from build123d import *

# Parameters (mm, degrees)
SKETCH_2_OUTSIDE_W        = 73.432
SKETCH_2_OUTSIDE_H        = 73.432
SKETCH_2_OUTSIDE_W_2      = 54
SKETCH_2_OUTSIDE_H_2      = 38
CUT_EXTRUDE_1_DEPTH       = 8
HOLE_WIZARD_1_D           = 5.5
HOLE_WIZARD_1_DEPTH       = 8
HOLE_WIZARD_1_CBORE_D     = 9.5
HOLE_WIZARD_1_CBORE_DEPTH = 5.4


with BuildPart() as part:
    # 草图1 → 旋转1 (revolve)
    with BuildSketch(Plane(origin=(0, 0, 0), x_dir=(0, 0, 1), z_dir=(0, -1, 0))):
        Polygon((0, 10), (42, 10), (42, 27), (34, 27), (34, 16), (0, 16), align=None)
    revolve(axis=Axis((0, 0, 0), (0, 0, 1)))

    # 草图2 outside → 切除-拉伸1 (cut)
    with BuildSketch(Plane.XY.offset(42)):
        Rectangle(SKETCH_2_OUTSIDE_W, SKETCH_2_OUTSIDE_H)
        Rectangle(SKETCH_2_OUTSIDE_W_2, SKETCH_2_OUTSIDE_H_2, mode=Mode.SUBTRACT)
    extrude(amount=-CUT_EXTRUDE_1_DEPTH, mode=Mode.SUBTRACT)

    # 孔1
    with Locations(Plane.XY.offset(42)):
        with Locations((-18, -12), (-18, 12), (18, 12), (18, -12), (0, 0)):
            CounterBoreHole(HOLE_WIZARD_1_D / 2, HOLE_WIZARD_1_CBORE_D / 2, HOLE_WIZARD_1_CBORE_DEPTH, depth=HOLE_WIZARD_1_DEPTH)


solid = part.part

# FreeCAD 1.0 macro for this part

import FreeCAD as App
import Part
import Sketcher
from FreeCAD import Vector
Q = App.Units.Quantity


def add_polygon(sketch, points):
    """Adds a closed chain of lines whose ends are joined by coincident constraints."""
    first, n = sketch.GeometryCount, len(points)
    for a, b in zip(points, points[1:] + points[:1]):
        sketch.addGeometry(Part.LineSegment(App.Vector(*a, 0), App.Vector(*b, 0)), False)
    for i in range(n):
        sketch.addConstraint(Sketcher.Constraint("Coincident", first + i, 2, first + (i + 1) % n, 1))

doc = App.newDocument("Part")
body = doc.addObject("PartDesign::Body", "Body")

# Sketch on XZ plane
sketch1 = body.newObject("Sketcher::SketchObject", "Sketch")
sketch1.AttachmentSupport = (doc.getObject("XZ_Plane"), [""])
sketch1.MapMode = "FlatFace"
add_polygon(sketch1, [(-10, 0), (-10, 42), (-27, 42), (-27, 34), (-16, 34), (-16, 0)])  # lines 0-5
sketch1.addConstraint([
    Sketcher.Constraint("Vertical", 0),
    Sketcher.Constraint("Horizontal", 1),
    Sketcher.Constraint("Vertical", 2),
    Sketcher.Constraint("Horizontal", 3),
    Sketcher.Constraint("Vertical", 4),
    Sketcher.Constraint("Horizontal", 5),
    Sketcher.Constraint("PointOnObject", 4, 2, -1),
    Sketcher.Constraint("DistanceX", 1, 2, 1, 1, Q("17 mm")),
    Sketcher.Constraint("DistanceX", 3, 1, 3, 2, Q("11 mm")),
    Sketcher.Constraint("DistanceY", 0, 1, 0, 2, Q("42 mm")),
    Sketcher.Constraint("DistanceY", 2, 2, 2, 1, Q("8 mm")),
    Sketcher.Constraint("DistanceX", 0, 2, -1, 1, Q("10 mm")),
])
revolution = body.newObject("PartDesign::Revolution", "Revolution")
revolution.Profile = sketch1
revolution.ReferenceAxis = (sketch1, ["V_Axis"])
revolution.Angle = 360

# Sketch on XY plane
sketch2 = body.newObject("Sketcher::SketchObject", "Sketch001")
sketch2.AttachmentSupport = (doc.getObject("XY_Plane"), [""])
sketch2.MapMode = "FlatFace"
sketch2.AttachmentOffset = App.Placement(Vector(0, 0, 42), App.Rotation())
add_polygon(sketch2, [(-37, 37), (-37, -37), (37, -37), (37, 37)])  # lines 0-3
add_polygon(sketch2, [(27, -19), (-27, -19), (-27, 19), (27, 19)])  # lines 4-7
sketch2.addConstraint([
    Sketcher.Constraint("Vertical", 0),
    Sketcher.Constraint("Horizontal", 1),
    Sketcher.Constraint("Vertical", 2),
    Sketcher.Constraint("Horizontal", 3),
    Sketcher.Constraint("Horizontal", 4),
    Sketcher.Constraint("Vertical", 5),
    Sketcher.Constraint("Horizontal", 6),
    Sketcher.Constraint("Vertical", 7),
    Sketcher.Constraint("Symmetric", 0, 2, 2, 2, -1, 1),
    Sketcher.Constraint("Symmetric", 4, 2, 6, 2, -1, 1),
    Sketcher.Constraint("Equal", 3, 0),
    Sketcher.Constraint("DistanceX", 4, 2, 4, 1, Q("54 mm")),
    Sketcher.Constraint("DistanceY", 5, 1, 5, 2, Q("38 mm")),
    Sketcher.Constraint("DistanceX", 1, 1, 1, 2, Q("73.432 mm")),
])
pocket1 = body.newObject("PartDesign::Pocket", "Pocket")
pocket1.Profile = sketch2
pocket1.Length = 8

# Sketch on XY plane
sketch3 = body.newObject("Sketcher::SketchObject", "Sketch002")
sketch3.AttachmentSupport = (doc.getObject("XY_Plane"), [""])
sketch3.MapMode = "FlatFace"
sketch3.AttachmentOffset = App.Placement(Vector(0, 0, 42), App.Rotation())
sketch3.addGeometry([
    Part.Circle(Vector(-18, -12, 0), Vector(0, 0, 1), 2.8),  # 0
    Part.Circle(Vector(-18, 12, 0), Vector(0, 0, 1), 2.8),  # 1
    Part.Circle(Vector(18, 12, 0), Vector(0, 0, 1), 2.8),  # 2
    Part.Circle(Vector(18, -12, 0), Vector(0, 0, 1), 2.8),  # 3
    Part.Circle(Vector(0, 0, 0), Vector(0, 0, 1), 2.8),  # 4
], False)
sketch3.addConstraint([
    Sketcher.Constraint("Coincident", 4, 3, -1, 1),
    Sketcher.Constraint("Equal", 0, 1),
    Sketcher.Constraint("Equal", 1, 2),
    Sketcher.Constraint("Equal", 2, 3),
    Sketcher.Constraint("Equal", 3, 4),
    Sketcher.Constraint("Symmetric", 0, 3, 2, 3, -1, 1),
    Sketcher.Constraint("Symmetric", 1, 3, 3, 3, -1, 1),
    Sketcher.Constraint("Symmetric", 1, 3, 2, 3, -2),
    Sketcher.Constraint("Diameter", 0, Q("5.5 mm")),
    Sketcher.Constraint("DistanceX", 0, 3, -1, 1, Q("18 mm")),
    Sketcher.Constraint("DistanceY", 0, 3, -1, 1, Q("12 mm")),
])
doc.recompute()
hole = body.newObject("PartDesign::Hole", "Hole")
hole.Profile = sketch3
hole.ThreadType = "None"
hole.Diameter = 5.5
hole.DepthType = "Dimension"
hole.Depth = 8
hole.DrillPoint = "Flat"
hole.HoleCutType = "Counterbore"
hole.HoleCutDiameter = 9.5
hole.HoleCutDepth = 5.4

doc.recompute()
